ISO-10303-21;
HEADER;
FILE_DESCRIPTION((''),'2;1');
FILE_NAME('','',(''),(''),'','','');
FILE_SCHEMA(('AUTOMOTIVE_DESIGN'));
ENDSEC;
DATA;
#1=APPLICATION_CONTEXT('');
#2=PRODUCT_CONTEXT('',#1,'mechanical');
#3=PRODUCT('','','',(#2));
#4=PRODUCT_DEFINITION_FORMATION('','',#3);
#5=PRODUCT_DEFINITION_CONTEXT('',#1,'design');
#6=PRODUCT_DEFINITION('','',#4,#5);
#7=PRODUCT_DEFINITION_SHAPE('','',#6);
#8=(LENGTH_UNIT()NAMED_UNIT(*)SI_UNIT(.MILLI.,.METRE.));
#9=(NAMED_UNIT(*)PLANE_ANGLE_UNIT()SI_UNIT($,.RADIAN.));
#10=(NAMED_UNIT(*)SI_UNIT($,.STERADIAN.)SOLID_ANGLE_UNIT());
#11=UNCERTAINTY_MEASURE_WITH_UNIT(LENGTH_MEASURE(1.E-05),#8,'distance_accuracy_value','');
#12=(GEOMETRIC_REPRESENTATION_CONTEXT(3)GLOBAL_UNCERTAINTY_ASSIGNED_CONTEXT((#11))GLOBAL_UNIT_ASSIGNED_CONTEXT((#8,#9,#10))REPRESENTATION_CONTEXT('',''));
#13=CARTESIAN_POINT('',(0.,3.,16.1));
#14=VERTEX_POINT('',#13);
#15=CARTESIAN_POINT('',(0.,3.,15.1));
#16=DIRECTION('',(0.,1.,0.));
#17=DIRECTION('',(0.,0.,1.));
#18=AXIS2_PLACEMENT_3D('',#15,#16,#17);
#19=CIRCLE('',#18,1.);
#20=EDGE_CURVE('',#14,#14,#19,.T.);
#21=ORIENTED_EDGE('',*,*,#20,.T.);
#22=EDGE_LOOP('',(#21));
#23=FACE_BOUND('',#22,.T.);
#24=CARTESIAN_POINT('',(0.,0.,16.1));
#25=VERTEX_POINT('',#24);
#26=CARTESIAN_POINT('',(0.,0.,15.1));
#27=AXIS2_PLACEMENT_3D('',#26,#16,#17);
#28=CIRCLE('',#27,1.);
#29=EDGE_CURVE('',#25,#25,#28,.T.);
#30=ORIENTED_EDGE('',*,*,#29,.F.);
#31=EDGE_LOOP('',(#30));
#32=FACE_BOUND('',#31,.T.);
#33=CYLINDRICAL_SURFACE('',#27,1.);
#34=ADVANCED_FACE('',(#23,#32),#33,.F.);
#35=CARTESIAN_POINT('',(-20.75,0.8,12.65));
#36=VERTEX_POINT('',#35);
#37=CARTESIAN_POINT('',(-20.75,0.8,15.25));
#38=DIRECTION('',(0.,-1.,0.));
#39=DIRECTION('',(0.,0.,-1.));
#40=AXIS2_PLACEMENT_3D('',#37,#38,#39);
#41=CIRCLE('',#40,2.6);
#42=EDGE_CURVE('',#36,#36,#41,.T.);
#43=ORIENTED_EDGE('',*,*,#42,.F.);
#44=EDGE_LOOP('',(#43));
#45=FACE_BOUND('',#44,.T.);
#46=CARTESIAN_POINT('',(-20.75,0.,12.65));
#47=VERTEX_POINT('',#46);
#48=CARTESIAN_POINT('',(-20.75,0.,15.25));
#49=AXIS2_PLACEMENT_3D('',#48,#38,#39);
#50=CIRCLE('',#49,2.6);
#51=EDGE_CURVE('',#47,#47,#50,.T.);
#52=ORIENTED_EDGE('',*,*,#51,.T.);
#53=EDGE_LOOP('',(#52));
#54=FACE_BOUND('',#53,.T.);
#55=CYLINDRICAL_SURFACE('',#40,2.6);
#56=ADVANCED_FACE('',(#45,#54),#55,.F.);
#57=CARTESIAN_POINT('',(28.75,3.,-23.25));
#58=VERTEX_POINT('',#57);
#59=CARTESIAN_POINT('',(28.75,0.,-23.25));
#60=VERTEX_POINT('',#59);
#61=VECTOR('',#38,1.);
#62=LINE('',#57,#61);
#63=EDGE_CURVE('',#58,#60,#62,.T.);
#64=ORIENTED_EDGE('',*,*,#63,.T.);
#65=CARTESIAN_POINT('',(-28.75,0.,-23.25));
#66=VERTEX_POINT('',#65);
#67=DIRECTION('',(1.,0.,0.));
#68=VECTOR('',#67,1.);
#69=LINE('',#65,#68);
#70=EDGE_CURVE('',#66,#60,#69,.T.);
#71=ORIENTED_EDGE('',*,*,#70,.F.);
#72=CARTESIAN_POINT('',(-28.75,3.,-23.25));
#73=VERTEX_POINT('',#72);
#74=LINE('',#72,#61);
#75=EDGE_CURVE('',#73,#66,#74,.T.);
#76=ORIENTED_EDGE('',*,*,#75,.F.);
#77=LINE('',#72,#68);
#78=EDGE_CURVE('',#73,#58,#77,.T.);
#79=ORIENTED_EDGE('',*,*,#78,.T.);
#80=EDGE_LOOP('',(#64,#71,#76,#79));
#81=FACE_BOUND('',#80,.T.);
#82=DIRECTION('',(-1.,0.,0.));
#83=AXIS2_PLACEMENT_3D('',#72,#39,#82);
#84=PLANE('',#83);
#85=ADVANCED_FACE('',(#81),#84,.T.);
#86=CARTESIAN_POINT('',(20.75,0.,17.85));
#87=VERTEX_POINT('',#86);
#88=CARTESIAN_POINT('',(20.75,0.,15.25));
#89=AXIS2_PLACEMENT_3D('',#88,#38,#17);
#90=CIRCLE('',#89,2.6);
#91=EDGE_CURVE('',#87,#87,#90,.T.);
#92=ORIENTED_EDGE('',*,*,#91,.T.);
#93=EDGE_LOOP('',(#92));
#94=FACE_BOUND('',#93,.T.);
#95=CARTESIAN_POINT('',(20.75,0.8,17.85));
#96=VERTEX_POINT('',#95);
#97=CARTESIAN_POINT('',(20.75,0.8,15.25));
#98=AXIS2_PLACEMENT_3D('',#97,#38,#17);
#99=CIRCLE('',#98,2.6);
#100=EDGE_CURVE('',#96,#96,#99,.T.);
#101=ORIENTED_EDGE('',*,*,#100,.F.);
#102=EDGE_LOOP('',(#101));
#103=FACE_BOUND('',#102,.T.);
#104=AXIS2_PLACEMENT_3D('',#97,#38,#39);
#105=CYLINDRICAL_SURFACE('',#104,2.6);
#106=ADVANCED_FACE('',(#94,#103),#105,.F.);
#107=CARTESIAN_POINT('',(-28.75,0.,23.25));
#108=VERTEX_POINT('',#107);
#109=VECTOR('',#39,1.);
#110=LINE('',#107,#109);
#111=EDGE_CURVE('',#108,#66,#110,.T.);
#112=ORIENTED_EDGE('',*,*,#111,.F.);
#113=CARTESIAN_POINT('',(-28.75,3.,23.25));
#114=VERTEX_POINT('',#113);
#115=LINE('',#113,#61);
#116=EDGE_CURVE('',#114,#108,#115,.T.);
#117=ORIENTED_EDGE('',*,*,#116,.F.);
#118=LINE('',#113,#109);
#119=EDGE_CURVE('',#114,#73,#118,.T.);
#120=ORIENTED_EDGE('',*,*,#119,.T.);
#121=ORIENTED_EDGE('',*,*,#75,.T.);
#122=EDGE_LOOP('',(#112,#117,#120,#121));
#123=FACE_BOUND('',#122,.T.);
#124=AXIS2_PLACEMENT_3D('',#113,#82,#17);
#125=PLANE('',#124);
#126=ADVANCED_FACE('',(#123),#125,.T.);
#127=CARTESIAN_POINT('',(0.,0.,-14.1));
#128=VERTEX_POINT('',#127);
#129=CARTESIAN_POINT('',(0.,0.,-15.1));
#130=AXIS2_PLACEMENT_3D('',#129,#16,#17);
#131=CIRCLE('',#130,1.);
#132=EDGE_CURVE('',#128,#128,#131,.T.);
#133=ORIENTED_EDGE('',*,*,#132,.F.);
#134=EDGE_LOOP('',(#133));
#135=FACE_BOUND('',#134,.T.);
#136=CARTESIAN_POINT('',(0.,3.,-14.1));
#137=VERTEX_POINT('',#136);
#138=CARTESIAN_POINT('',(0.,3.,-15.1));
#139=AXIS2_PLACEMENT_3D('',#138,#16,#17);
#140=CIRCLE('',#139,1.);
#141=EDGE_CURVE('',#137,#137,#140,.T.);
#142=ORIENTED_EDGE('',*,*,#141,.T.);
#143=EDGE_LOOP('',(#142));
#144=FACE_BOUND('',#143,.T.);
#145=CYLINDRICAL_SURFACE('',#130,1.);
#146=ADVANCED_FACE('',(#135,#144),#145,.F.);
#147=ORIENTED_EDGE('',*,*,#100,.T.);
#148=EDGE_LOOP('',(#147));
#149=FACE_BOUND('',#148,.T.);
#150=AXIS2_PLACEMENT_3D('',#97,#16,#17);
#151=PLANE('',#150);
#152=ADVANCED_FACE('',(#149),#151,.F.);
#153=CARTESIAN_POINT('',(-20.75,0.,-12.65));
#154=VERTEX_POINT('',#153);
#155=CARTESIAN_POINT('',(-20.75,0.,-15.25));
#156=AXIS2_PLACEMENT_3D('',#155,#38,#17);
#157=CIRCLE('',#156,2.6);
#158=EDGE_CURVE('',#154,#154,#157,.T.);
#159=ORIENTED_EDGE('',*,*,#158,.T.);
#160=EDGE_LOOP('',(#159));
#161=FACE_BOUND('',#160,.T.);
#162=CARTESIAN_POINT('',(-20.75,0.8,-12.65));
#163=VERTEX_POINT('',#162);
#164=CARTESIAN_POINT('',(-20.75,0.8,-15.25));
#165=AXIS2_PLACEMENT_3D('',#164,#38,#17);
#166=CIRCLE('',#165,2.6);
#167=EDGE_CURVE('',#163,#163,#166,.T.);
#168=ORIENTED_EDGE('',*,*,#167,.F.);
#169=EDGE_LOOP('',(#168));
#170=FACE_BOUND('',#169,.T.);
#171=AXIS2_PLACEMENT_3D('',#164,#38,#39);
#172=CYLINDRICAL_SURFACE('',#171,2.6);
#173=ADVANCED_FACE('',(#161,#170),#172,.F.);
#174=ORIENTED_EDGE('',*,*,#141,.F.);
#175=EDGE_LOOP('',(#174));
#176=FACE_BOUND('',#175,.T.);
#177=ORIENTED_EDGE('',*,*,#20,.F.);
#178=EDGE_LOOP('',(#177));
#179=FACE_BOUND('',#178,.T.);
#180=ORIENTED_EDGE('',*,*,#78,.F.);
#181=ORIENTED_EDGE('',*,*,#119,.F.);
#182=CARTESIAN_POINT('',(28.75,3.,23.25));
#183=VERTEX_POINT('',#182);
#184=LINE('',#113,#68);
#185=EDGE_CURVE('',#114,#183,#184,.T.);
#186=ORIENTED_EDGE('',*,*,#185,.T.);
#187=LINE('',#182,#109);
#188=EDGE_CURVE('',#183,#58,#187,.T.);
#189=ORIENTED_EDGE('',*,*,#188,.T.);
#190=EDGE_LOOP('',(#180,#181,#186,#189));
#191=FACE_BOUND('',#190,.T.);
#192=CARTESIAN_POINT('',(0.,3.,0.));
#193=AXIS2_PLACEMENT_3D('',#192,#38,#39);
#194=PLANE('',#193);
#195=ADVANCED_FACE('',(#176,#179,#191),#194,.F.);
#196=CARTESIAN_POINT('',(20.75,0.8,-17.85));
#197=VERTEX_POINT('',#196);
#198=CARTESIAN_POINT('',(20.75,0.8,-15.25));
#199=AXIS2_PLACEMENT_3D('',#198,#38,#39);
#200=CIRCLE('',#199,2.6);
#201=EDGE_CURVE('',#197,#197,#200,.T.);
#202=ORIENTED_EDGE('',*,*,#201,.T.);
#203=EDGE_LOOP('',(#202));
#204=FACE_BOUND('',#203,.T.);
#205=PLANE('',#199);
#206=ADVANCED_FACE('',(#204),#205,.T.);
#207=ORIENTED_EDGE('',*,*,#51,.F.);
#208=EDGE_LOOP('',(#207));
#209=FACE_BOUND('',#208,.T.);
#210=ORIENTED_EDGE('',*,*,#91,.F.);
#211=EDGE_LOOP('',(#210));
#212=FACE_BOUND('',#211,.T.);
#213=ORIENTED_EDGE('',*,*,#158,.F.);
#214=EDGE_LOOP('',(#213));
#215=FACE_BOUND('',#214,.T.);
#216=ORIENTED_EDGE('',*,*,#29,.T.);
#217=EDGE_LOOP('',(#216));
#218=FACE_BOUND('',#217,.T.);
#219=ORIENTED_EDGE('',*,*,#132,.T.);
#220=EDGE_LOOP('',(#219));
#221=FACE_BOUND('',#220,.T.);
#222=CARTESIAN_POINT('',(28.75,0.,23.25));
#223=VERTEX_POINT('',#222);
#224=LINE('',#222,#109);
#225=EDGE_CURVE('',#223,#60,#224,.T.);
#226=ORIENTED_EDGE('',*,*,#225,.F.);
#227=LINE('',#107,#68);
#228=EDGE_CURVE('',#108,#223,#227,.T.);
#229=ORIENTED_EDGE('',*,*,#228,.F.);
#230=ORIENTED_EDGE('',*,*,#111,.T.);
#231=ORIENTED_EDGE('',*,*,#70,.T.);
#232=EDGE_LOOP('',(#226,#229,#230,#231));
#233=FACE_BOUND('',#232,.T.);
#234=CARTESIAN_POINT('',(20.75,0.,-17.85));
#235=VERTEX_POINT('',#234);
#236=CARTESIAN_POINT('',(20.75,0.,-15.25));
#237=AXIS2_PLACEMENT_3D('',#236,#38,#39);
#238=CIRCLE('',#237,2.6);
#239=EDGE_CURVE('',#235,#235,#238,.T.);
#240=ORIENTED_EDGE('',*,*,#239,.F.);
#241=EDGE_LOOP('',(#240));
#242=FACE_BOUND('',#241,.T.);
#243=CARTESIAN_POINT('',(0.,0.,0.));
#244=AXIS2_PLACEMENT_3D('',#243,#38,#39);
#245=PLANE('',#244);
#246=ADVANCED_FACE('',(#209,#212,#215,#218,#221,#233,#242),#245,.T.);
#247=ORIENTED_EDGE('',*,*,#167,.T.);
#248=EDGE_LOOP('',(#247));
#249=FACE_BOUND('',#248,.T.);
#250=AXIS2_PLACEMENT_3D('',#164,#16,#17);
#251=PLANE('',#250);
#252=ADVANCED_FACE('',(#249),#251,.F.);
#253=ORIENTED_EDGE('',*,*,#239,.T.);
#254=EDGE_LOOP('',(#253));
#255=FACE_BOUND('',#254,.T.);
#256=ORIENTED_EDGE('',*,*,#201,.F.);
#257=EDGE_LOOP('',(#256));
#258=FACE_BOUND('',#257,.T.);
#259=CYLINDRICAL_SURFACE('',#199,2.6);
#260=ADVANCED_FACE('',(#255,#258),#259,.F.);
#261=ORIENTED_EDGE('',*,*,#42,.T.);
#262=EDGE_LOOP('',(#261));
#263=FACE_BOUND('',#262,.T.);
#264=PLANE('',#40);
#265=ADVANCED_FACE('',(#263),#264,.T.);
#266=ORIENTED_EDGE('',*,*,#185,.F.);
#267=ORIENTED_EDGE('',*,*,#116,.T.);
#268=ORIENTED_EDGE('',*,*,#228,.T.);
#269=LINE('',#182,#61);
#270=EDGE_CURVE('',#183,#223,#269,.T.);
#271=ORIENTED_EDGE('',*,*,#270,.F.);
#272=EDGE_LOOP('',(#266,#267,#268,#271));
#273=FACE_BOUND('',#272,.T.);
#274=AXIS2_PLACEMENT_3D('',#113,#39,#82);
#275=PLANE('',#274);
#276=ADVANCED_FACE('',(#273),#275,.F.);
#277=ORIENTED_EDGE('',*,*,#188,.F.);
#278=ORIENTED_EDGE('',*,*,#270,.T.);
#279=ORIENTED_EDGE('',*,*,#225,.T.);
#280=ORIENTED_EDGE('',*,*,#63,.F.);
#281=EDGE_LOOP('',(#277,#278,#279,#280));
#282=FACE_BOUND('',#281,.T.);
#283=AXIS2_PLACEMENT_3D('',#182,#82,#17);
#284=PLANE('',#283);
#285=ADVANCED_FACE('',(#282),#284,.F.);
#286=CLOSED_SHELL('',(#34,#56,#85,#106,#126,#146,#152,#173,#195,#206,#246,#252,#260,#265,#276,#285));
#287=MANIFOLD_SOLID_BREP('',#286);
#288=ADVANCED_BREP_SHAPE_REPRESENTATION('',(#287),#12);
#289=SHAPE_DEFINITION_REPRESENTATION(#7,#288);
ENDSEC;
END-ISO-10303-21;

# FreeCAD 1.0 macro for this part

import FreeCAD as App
import Part
import Sketcher
from FreeCAD import Vector

doc = App.newDocument("Part")
body = doc.addObject("PartDesign::Body", "Body")

sketch1 = body.newObject("Sketcher::SketchObject", "Sketch")
sketch1.AttachmentSupport = (doc.getObject("XZ_Plane"), [""])
sketch1.MapMode = "FlatFace"
sketch1.addGeometry([
    Part.LineSegment(Vector(-29, -23, 0), Vector(-29, 23, 0)),
    Part.LineSegment(Vector(-29, 23, 0), Vector(29, 23, 0)),
    Part.LineSegment(Vector(29, 23, 0), Vector(29, -23, 0)),
    Part.LineSegment(Vector(29, -23, 0), Vector(-29, -23, 0)),
], False)
sketch1.addConstraint([
    Sketcher.Constraint("Coincident", 0, 2, 1, 1),
    Sketcher.Constraint("Coincident", 1, 2, 2, 1),
    Sketcher.Constraint("Coincident", 2, 2, 3, 1),
    Sketcher.Constraint("Coincident", 3, 2, 0, 1),
    Sketcher.Constraint("Vertical", 0),
    Sketcher.Constraint("Horizontal", 1),
    Sketcher.Constraint("Vertical", 2),
    Sketcher.Constraint("Horizontal", 3),
    Sketcher.Constraint("Symmetric", 0, 2, 2, 2, -1, 1),
    Sketcher.Constraint("DistanceX", 1, 1, 1, 2, 57.5),
    Sketcher.Constraint("DistanceY", 0, 1, 0, 2, 46.5),
])
pad1 = body.newObject("PartDesign::Pad", "Pad")
pad1.Profile = sketch1
pad1.Length = 3
pad1.Reversed = True

sketch2 = body.newObject("Sketcher::SketchObject", "Sketch001")
sketch2.AttachmentSupport = (doc.getObject("XZ_Plane"), [""])
sketch2.MapMode = "FlatFace"
sketch2.AttachmentOffset = App.Placement(Vector(0, 0, -3), App.Rotation())
sketch2.addGeometry([
    Part.Circle(Vector(0, 15.1, 0), Vector(0, 0, 1), 1),
    Part.Circle(Vector(0, -15.1, 0), Vector(0, 0, 1), 1),
], False)
sketch2.addConstraint([
    Sketcher.Constraint("Equal", 0, 1),
    Sketcher.Constraint("Symmetric", 0, 3, 1, 3, -1, 1),
    Sketcher.Constraint("PointOnObject", 0, 3, -2),
    Sketcher.Constraint("Diameter", 0, 2.0),
    Sketcher.Constraint("DistanceY", -1, 1, 0, 3, 15.1),
])
pocket1 = body.newObject("PartDesign::Pocket", "Pocket")
pocket1.Profile = sketch2
pocket1.Type = "ThroughAll"
pocket1.Reversed = True

sketch3 = body.newObject("Sketcher::SketchObject", "Sketch002")
sketch3.AttachmentSupport = (doc.getObject("XZ_Plane"), [""])
sketch3.MapMode = "FlatFace"
sketch3.addGeometry([
    Part.Circle(Vector(-20.8, 15.2, 0), Vector(0, 0, 1), 2.6),
    Part.Circle(Vector(20.8, 15.2, 0), Vector(0, 0, 1), 2.6),
    Part.Circle(Vector(-20.8, -15.2, 0), Vector(0, 0, 1), 2.6),
    Part.Circle(Vector(20.8, -15.2, 0), Vector(0, 0, 1), 2.6),
], False)
sketch3.addConstraint([
    Sketcher.Constraint("Equal", 0, 1),
    Sketcher.Constraint("Equal", 1, 2),
    Sketcher.Constraint("Equal", 2, 3),
    Sketcher.Constraint("Symmetric", 1, 3, 2, 3, -1, 1),
    Sketcher.Constraint("Symmetric", 0, 3, 3, 3, -1, 1),
    Sketcher.Constraint("Symmetric", 0, 3, 1, 3, -2),
    Sketcher.Constraint("Diameter", 0, 5.2),
    Sketcher.Constraint("DistanceX", 0, 3, 1, 3, 41.5),
    Sketcher.Constraint("DistanceY", 2, 3, 0, 3, 30.5),
])
pocket2 = body.newObject("PartDesign::Pocket", "Pocket001")
pocket2.Profile = sketch3
pocket2.Length = 0.8

doc.recompute()
